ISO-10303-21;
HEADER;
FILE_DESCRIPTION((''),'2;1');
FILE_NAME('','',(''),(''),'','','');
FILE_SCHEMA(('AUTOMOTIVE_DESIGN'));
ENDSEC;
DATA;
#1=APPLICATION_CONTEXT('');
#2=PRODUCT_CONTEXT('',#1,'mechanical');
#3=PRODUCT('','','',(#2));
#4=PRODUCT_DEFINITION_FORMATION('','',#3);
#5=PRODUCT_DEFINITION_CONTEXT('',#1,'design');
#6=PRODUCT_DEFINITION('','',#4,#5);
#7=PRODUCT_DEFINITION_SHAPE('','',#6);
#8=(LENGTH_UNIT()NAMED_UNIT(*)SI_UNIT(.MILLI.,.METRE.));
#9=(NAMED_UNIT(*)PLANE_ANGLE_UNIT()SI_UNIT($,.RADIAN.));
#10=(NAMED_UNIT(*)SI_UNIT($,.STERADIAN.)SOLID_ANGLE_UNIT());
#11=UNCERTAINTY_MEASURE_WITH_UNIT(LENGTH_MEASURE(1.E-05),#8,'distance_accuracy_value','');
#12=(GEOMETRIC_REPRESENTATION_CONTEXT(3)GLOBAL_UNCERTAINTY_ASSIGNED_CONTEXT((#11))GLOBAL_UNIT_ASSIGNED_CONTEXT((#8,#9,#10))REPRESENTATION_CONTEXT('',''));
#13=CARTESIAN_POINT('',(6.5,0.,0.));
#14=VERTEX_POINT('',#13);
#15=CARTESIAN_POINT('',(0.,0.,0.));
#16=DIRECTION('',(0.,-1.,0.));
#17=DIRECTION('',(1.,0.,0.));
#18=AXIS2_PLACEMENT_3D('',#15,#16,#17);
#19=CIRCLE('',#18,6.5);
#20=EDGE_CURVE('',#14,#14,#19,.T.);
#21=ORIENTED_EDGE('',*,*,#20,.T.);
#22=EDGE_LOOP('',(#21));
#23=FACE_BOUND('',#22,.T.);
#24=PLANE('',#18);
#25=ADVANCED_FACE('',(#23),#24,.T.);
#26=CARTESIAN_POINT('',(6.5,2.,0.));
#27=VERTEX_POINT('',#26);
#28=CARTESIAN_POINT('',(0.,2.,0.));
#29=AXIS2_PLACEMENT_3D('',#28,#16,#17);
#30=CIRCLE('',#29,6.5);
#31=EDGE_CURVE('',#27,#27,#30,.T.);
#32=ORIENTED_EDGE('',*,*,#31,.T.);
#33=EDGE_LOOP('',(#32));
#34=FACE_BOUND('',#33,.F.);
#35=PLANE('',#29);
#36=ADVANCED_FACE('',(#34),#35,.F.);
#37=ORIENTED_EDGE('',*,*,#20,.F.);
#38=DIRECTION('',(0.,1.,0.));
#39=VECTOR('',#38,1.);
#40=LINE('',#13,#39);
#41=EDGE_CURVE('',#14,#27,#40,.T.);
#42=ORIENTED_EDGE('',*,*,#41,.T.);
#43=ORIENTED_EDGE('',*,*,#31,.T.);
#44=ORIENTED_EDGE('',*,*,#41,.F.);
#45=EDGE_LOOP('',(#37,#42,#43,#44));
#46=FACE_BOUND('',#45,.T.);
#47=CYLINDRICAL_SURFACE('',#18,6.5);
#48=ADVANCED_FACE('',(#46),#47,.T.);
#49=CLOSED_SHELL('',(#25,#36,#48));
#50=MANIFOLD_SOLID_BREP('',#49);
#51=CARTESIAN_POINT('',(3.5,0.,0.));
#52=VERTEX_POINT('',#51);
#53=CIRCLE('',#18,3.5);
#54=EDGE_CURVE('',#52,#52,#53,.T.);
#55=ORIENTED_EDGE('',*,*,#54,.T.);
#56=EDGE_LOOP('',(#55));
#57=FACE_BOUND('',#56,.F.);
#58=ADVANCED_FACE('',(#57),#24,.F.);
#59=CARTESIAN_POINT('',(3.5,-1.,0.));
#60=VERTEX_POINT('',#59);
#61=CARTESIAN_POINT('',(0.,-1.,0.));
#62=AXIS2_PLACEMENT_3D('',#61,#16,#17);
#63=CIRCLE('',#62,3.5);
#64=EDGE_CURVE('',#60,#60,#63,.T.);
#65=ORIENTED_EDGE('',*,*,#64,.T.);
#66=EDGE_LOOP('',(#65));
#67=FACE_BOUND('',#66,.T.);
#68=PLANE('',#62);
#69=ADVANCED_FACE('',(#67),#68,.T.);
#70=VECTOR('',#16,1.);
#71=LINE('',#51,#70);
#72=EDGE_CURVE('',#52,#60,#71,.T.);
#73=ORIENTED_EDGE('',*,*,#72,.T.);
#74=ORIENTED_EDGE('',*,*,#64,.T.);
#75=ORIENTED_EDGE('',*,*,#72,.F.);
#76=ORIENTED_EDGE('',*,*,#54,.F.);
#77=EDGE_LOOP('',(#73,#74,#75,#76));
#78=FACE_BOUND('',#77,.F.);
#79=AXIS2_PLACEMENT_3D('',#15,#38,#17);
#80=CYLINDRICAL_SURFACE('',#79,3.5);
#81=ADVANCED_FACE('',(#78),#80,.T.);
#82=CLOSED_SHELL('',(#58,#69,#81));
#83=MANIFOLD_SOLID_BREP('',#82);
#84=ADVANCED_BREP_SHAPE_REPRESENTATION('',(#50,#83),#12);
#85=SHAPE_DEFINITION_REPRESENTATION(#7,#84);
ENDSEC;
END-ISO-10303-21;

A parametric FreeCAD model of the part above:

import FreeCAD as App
import Part
import Sketcher
Q = App.Units.Quantity

doc = App.newDocument("Part")
body = doc.addObject("PartDesign::Body", "Body")

# Sketch on XZ plane
sketch1 = body.newObject("Sketcher::SketchObject", "Sketch")
sketch1.AttachmentSupport = (doc.getObject("XZ_Plane"), [""])
sketch1.MapMode = "FlatFace"
sketch1.addGeometry(Part.Circle(App.Vector(0, 0, 0), App.Vector(0, 0, 1), 6.5), False)
sketch1.addConstraint(Sketcher.Constraint("Coincident", 0, 3, -1, 1))
sketch1.addConstraint(Sketcher.Constraint("Diameter", 0, Q("13 mm")))
pad1 = body.newObject("PartDesign::Pad", "Pad")
pad1.Profile = sketch1
pad1.Length = 2
pad1.Reversed = True
body2 = doc.addObject("PartDesign::Body", "Body001")

# Sketch on XZ plane
sketch2 = body2.newObject("Sketcher::SketchObject", "Sketch001")
sketch2.AttachmentSupport = (doc.getObject("XZ_Plane001"), [""])
sketch2.MapMode = "FlatFace"
sketch2.addGeometry(Part.Circle(App.Vector(0, 0, 0), App.Vector(0, 0, 1), 3.5), False)
sketch2.addConstraint(Sketcher.Constraint("Coincident", 0, 3, -1, 1))
sketch2.addConstraint(Sketcher.Constraint("Diameter", 0, Q("7 mm")))
pad2 = body2.newObject("PartDesign::Pad", "Pad001")
pad2.Profile = sketch2
pad2.Length = 1

doc.recompute()
